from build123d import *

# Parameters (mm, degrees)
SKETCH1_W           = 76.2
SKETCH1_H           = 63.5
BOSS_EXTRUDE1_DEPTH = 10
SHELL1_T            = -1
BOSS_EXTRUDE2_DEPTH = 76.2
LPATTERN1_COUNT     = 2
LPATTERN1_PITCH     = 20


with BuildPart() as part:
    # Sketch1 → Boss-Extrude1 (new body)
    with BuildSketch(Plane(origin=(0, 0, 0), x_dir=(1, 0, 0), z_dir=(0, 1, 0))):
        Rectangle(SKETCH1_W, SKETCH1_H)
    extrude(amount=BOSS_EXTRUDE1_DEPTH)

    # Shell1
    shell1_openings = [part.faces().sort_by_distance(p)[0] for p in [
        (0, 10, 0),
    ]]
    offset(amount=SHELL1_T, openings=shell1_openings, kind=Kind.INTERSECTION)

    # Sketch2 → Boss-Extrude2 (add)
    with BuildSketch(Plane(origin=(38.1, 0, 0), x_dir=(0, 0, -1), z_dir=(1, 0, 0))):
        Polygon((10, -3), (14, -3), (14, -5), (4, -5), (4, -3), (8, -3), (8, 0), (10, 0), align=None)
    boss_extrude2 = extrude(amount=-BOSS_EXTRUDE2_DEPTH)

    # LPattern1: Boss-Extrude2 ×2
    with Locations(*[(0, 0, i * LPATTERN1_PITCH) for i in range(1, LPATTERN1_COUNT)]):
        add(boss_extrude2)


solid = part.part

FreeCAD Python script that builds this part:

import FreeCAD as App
import Part
import Sketcher
from FreeCAD import Vector
Q = App.Units.Quantity


def faces_at(feature, points):
    """Names of the faces that lie closest to the given points."""
    faces = feature.Shape.Faces
    near = lambda p: min(range(len(faces)), key=lambda i: faces[i].distToShape(Part.Vertex(*p))[0])
    return sorted({f"Face{near(p) + 1}" for p in points})

doc = App.newDocument("Part")
body = doc.addObject("PartDesign::Body", "Body")

# Sketch on XZ plane
sketch1 = doc.addObject("Sketcher::SketchObject", "Sketch")
body.addObject(sketch1)
sketch1.AttachmentSupport = (doc.XZ_Plane, [""])
sketch1.MapMode = "FlatFace"
sketch1.addGeometry(Part.LineSegment(Vector(-38, -32, 0), Vector(-38, 32, 0)), False)
sketch1.addGeometry(Part.LineSegment(Vector(-38, 32, 0), Vector(38, 32, 0)), False)
sketch1.addGeometry(Part.LineSegment(Vector(38, 32, 0), Vector(38, -32, 0)), False)
sketch1.addGeometry(Part.LineSegment(Vector(38, -32, 0), Vector(-38, -32, 0)), False)
sketch1.addConstraint(Sketcher.Constraint("Coincident", 0, 2, 1, 1))
sketch1.addConstraint(Sketcher.Constraint("Coincident", 1, 2, 2, 1))
sketch1.addConstraint(Sketcher.Constraint("Coincident", 2, 2, 3, 1))
sketch1.addConstraint(Sketcher.Constraint("Coincident", 3, 2, 0, 1))
sketch1.addConstraint(Sketcher.Constraint("Vertical", 0))
sketch1.addConstraint(Sketcher.Constraint("Horizontal", 1))
sketch1.addConstraint(Sketcher.Constraint("Vertical", 2))
sketch1.addConstraint(Sketcher.Constraint("Horizontal", 3))
sketch1.addConstraint(Sketcher.Constraint("Symmetric", 0, 2, 2, 2, -1, 1))
sketch1.addConstraint(Sketcher.Constraint("DistanceX", 1, 1, 1, 2, Q("76.2 mm")))
sketch1.addConstraint(Sketcher.Constraint("DistanceY", 0, 1, 0, 2, Q("63.5 mm")))
pad1 = doc.addObject("PartDesign::Pad", "Pad")
body.addObject(pad1)
pad1.Profile = sketch1
pad1.Length = 10
pad1.Reversed = True
doc.recompute()

thickness = doc.addObject("PartDesign::Thickness", "Thickness")
body.addObject(thickness)
thickness.Base = (pad1, faces_at(pad1, [(0, 10, 0)]))
thickness.Value = 1
thickness.Reversed = True
thickness.Join = "Intersection"

# Sketch on YZ plane
sketch2 = doc.addObject("Sketcher::SketchObject", "Sketch001")
body.addObject(sketch2)
sketch2.AttachmentSupport = (doc.YZ_Plane, [""])
sketch2.MapMode = "FlatFace"
sketch2.AttachmentOffset = App.Placement(Vector(0, 0, 38.1), App.Rotation())
sketch2.addGeometry(Part.LineSegment(Vector(-3, -14, 0), Vector(-3, -10, 0)), False)
sketch2.addGeometry(Part.LineSegment(Vector(-3, -10, 0), Vector(0, -10, 0)), False)
sketch2.addGeometry(Part.LineSegment(Vector(0, -10, 0), Vector(0, -8, 0)), False)
sketch2.addGeometry(Part.LineSegment(Vector(0, -8, 0), Vector(-3, -8, 0)), False)
sketch2.addGeometry(Part.LineSegment(Vector(-3, -8, 0), Vector(-3, -4, 0)), False)
sketch2.addGeometry(Part.LineSegment(Vector(-3, -4, 0), Vector(-5, -4, 0)), False)
sketch2.addGeometry(Part.LineSegment(Vector(-5, -4, 0), Vector(-5, -14, 0)), False)
sketch2.addGeometry(Part.LineSegment(Vector(-5, -14, 0), Vector(-3, -14, 0)), False)
sketch2.addConstraint(Sketcher.Constraint("Coincident", 0, 2, 1, 1))
sketch2.addConstraint(Sketcher.Constraint("Coincident", 1, 2, 2, 1))
sketch2.addConstraint(Sketcher.Constraint("Coincident", 2, 2, 3, 1))
sketch2.addConstraint(Sketcher.Constraint("Coincident", 3, 2, 4, 1))
sketch2.addConstraint(Sketcher.Constraint("Coincident", 4, 2, 5, 1))
sketch2.addConstraint(Sketcher.Constraint("Coincident", 5, 2, 6, 1))
sketch2.addConstraint(Sketcher.Constraint("Coincident", 6, 2, 7, 1))
sketch2.addConstraint(Sketcher.Constraint("Coincident", 7, 2, 0, 1))
sketch2.addConstraint(Sketcher.Constraint("Vertical", 0))
sketch2.addConstraint(Sketcher.Constraint("Horizontal", 1))
sketch2.addConstraint(Sketcher.Constraint("Vertical", 2))
sketch2.addConstraint(Sketcher.Constraint("Horizontal", 3))
sketch2.addConstraint(Sketcher.Constraint("Vertical", 4))
sketch2.addConstraint(Sketcher.Constraint("Horizontal", 5))
sketch2.addConstraint(Sketcher.Constraint("Vertical", 6))
sketch2.addConstraint(Sketcher.Constraint("Horizontal", 7))
sketch2.addConstraint(Sketcher.Constraint("PointOnObject", 1, 2, -2))
sketch2.addConstraint(Sketcher.Constraint("Vertical", 0, 2, 3, 2))
sketch2.addConstraint(Sketcher.Constraint("Equal", 7, 2))
sketch2.addConstraint(Sketcher.Constraint("Equal", 0, 4))
sketch2.addConstraint(Sketcher.Constraint("DistanceX", 1, 1, 1, 2, Q("3 mm")))
sketch2.addConstraint(Sketcher.Constraint("DistanceX", 5, 2, 5, 1, Q("2 mm")))
sketch2.addConstraint(Sketcher.Constraint("DistanceY", 0, 1, 0, 2, Q("4 mm")))
sketch2.addConstraint(Sketcher.Constraint("DistanceY", 0, 2, -1, 1, Q("10 mm")))
pad2 = doc.addObject("PartDesign::Pad", "Pad001")
body.addObject(pad2)
pad2.Profile = sketch2
pad2.Length = 76.2
pad2.Reversed = True
doc.recompute()

linearpattern = doc.addObject("PartDesign::LinearPattern", "LinearPattern")
body.addObject(linearpattern)
linearpattern.Originals = [pad2]
linearpattern.Direction = (doc.Z_Axis, [""])
linearpattern.Mode = "offset"
linearpattern.Offset = 20
linearpattern.Occurrences = 2
body.Tip = linearpattern

doc.recompute()
